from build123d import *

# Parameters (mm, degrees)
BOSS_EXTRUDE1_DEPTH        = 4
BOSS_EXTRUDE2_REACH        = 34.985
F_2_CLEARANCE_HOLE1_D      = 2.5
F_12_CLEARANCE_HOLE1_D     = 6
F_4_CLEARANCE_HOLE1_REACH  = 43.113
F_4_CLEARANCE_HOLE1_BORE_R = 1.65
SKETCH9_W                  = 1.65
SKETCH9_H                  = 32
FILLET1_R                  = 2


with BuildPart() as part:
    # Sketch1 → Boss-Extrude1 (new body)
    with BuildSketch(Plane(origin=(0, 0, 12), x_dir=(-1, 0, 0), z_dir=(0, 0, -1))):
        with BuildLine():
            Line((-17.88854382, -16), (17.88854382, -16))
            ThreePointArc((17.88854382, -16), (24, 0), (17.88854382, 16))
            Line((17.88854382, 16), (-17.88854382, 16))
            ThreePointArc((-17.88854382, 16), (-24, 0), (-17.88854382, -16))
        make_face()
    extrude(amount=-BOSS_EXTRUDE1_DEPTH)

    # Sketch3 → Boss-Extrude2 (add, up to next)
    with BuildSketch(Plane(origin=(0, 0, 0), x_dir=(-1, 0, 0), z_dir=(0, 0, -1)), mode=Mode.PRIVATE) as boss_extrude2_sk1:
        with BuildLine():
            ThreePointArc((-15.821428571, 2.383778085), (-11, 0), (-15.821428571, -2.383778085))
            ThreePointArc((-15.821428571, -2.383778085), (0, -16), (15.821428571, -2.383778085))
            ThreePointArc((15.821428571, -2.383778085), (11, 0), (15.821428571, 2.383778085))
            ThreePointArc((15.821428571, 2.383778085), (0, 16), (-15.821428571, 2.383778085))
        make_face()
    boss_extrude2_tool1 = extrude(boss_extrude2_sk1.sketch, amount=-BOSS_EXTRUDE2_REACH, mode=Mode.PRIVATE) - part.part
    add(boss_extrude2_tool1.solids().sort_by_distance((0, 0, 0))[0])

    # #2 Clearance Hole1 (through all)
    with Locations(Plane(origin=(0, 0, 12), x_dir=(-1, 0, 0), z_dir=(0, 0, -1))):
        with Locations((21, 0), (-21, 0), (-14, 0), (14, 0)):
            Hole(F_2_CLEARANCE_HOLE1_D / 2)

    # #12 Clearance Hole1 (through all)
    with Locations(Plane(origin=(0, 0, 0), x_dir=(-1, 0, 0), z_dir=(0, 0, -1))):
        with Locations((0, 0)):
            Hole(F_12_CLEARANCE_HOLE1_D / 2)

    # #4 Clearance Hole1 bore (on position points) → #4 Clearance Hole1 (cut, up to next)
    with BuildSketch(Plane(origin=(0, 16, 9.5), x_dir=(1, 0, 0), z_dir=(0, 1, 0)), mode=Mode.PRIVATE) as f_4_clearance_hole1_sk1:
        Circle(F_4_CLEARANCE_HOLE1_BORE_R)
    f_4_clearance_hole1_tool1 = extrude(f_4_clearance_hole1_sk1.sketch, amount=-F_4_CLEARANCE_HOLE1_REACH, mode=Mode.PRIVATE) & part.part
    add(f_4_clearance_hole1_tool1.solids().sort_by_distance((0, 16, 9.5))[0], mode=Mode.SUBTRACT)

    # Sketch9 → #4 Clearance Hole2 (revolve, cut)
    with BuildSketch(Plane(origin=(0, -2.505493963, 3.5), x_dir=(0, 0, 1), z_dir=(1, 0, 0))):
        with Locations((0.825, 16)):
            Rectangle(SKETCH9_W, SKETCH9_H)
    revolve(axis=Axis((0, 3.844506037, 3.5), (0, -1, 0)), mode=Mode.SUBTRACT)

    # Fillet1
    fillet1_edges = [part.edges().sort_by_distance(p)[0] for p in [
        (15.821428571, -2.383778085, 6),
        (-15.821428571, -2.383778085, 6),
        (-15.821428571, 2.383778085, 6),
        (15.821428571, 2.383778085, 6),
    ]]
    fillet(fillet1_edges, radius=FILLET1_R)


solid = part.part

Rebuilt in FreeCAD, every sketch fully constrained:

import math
import FreeCAD as App
import Part
import Sketcher
from FreeCAD import Vector


def edges_at(feature, points):
    """Names of the edges that pass closest to the given points."""
    edges = feature.Shape.Edges
    near = lambda p: min(range(len(edges)), key=lambda i: edges[i].distToShape(Part.Vertex(*p))[0])
    return sorted({f"Edge{near(p) + 1}" for p in points})

doc = App.newDocument("Part")
body = doc.addObject("PartDesign::Body", "Body")

# Sketch on XY plane
sketch1 = body.newObject("Sketcher::SketchObject", "Sketch")
sketch1.AttachmentSupport = (doc.getObject("XY_Plane"), [""])
sketch1.MapMode = "FlatFace"
sketch1.AttachmentOffset = App.Placement(Vector(0, 0, 12), App.Rotation())
sketch1.addGeometry([
    Part.LineSegment(Vector(18, -16, 0), Vector(-18, -16, 0)),
    Part.ArcOfCircle(Part.Circle(Vector(0, 0, 0), Vector(0, 0, 1), 24), math.radians(138), math.radians(222)),
    Part.LineSegment(Vector(-18, 16, 0), Vector(18, 16, 0)),
    Part.ArcOfCircle(Part.Circle(Vector(0, 0, 0), Vector(0, 0, 1), 24), math.radians(-42), math.radians(42)),
], False)
sketch1.addConstraint([
    Sketcher.Constraint("Coincident", 0, 2, 1, 2),
    Sketcher.Constraint("Coincident", 1, 1, 2, 1),
    Sketcher.Constraint("Coincident", 2, 2, 3, 2),
    Sketcher.Constraint("Coincident", 3, 1, 0, 1),
    Sketcher.Constraint("Horizontal", 0),
    Sketcher.Constraint("Horizontal", 2),
    Sketcher.Constraint("Coincident", 1, 3, -1, 1),
    Sketcher.Constraint("Coincident", 3, 3, -1, 1),
    Sketcher.Constraint("Equal", 1, 3),
    Sketcher.Constraint("Vertical", 0, 2, 1, 1),
    Sketcher.Constraint("Radius", 1, 24.0),
    Sketcher.Constraint("DistanceY", 0, 2, -1, 1, 16.0),
])
pad1 = body.newObject("PartDesign::Pad", "Pad")
pad1.Profile = sketch1
pad1.Length = 4

# Sketch on XY plane
sketch2 = body.newObject("Sketcher::SketchObject", "Sketch001")
sketch2.AttachmentSupport = (doc.getObject("XY_Plane"), [""])
sketch2.MapMode = "FlatFace"
sketch2.addGeometry([
    Part.ArcOfCircle(Part.Circle(Vector(14, 0, 0), Vector(0, 0, 1), 3), math.radians(53), math.radians(307)),
    Part.ArcOfCircle(Part.Circle(Vector(0, 0, 0), Vector(0, 0, 1), 16), math.radians(-171), math.radians(-9)),
    Part.ArcOfCircle(Part.Circle(Vector(-14, 0, 0), Vector(0, 0, 1), 3), math.radians(-127), math.radians(127)),
    Part.ArcOfCircle(Part.Circle(Vector(0, 0, 0), Vector(0, 0, 1), 16), math.radians(9), math.radians(171)),
], False)
sketch2.addConstraint([
    Sketcher.Constraint("Coincident", 0, 2, 1, 2),
    Sketcher.Constraint("Coincident", 1, 1, 2, 1),
    Sketcher.Constraint("Coincident", 2, 2, 3, 2),
    Sketcher.Constraint("Coincident", 3, 1, 0, 1),
    Sketcher.Constraint("Coincident", 1, 3, -1, 1),
    Sketcher.Constraint("Coincident", 3, 3, -1, 1),
    Sketcher.Constraint("Equal", 0, 2),
    Sketcher.Constraint("Equal", 1, 3),
    Sketcher.Constraint("Symmetric", 0, 3, 2, 3, -1, 1),
    Sketcher.Constraint("PointOnObject", 0, 3, -1),
    Sketcher.Constraint("Radius", 0, 3.0),
    Sketcher.Constraint("Radius", 1, 16.0),
    Sketcher.Constraint("DistanceX", -1, 1, 0, 3, 14.0),
])
pad2 = body.newObject("PartDesign::Pad", "Pad001")
pad2.Profile = sketch2
pad2.Type = "UpToFirst"

# Sketch on XY plane
sketch3 = body.newObject("Sketcher::SketchObject", "Sketch002")
sketch3.AttachmentSupport = (doc.getObject("XY_Plane"), [""])
sketch3.MapMode = "FlatFace"
sketch3.AttachmentOffset = App.Placement(Vector(0, 0, 12), App.Rotation())
sketch3.addGeometry([
    Part.Circle(Vector(-21, 0, 0), Vector(0, 0, 1), 1.2),
    Part.Circle(Vector(21, 0, 0), Vector(0, 0, 1), 1.2),
    Part.Circle(Vector(14, 0, 0), Vector(0, 0, 1), 1.2),
    Part.Circle(Vector(-14, 0, 0), Vector(0, 0, 1), 1.2),
], False)
sketch3.addConstraint([
    Sketcher.Constraint("Equal", 0, 1),
    Sketcher.Constraint("Equal", 1, 2),
    Sketcher.Constraint("Equal", 2, 3),
    Sketcher.Constraint("Symmetric", 0, 3, 1, 3, -1, 1),
    Sketcher.Constraint("Symmetric", 2, 3, 3, 3, -1, 1),
    Sketcher.Constraint("PointOnObject", 0, 3, -1),
    Sketcher.Constraint("PointOnObject", 2, 3, -1),
    Sketcher.Constraint("Diameter", 0, 2.5),
    Sketcher.Constraint("DistanceX", 0, 3, -1, 1, 21.0),
    Sketcher.Constraint("DistanceX", -1, 1, 2, 3, 14.0),
])
doc.recompute()
hole = body.newObject("PartDesign::Hole", "Hole")
hole.Profile = sketch3
hole.ThreadType = "None"
hole.Diameter = 2.5
hole.DepthType = "ThroughAll"
hole.Reversed = True

# Sketch on XY plane
sketch4 = body.newObject("Sketcher::SketchObject", "Sketch003")
sketch4.AttachmentSupport = (doc.getObject("XY_Plane"), [""])
sketch4.MapMode = "FlatFace"
sketch4.addGeometry(Part.Circle(Vector(0, 0, 0), Vector(0, 0, 1), 3), False)
sketch4.addConstraint([
    Sketcher.Constraint("Coincident", 0, 3, -1, 1),
    Sketcher.Constraint("Diameter", 0, 6.0),
])
doc.recompute()
hole2 = body.newObject("PartDesign::Hole", "Hole001")
hole2.Profile = sketch4
hole2.ThreadType = "None"
hole2.Diameter = 6
hole2.DepthType = "ThroughAll"
hole2.Reversed = True

# Sketch on XZ plane
sketch5 = body.newObject("Sketcher::SketchObject", "Sketch004")
sketch5.AttachmentSupport = (doc.getObject("XZ_Plane"), [""])
sketch5.MapMode = "FlatFace"
sketch5.AttachmentOffset = App.Placement(Vector(0, 0, -16), App.Rotation())
sketch5.addGeometry(Part.Circle(Vector(0, 9.5, 0), Vector(0, 0, 1), 1.6), False)
sketch5.addConstraint([
    Sketcher.Constraint("PointOnObject", 0, 3, -2),
    Sketcher.Constraint("Diameter", 0, 3.3),
    Sketcher.Constraint("DistanceY", -1, 1, 0, 3, 9.5),
])
pocket1 = body.newObject("PartDesign::Pocket", "Pocket")
pocket1.Profile = sketch5
pocket1.Type = "UpToFirst"
pocket1.Reversed = True

# Sketch on YZ plane
sketch6 = body.newObject("Sketcher::SketchObject", "Sketch005")
sketch6.AttachmentSupport = (doc.getObject("YZ_Plane"), [""])
sketch6.MapMode = "FlatFace"
sketch6.addGeometry([
    Part.LineSegment(Vector(-34.5, 3.5, 0), Vector(-2.5, 3.5, 0)),
    Part.LineSegment(Vector(-2.5, 3.5, 0), Vector(-2.5, 5.2, 0)),
    Part.LineSegment(Vector(-2.5, 5.2, 0), Vector(-34.5, 5.2, 0)),
    Part.LineSegment(Vector(-34.5, 5.2, 0), Vector(-34.5, 3.5, 0)),
], False)
sketch6.addGeometry(Part.LineSegment(Vector(-2.5, 3.5, 0), Vector(-34.5, 3.5, 0)), True)  # axis
sketch6.addConstraint([
    Sketcher.Constraint("Coincident", 0, 2, 1, 1),
    Sketcher.Constraint("Coincident", 1, 2, 2, 1),
    Sketcher.Constraint("Coincident", 2, 2, 3, 1),
    Sketcher.Constraint("Coincident", 3, 2, 0, 1),
    Sketcher.Constraint("Horizontal", 0),
    Sketcher.Constraint("Vertical", 1),
    Sketcher.Constraint("Horizontal", 2),
    Sketcher.Constraint("Vertical", 3),
    Sketcher.Constraint("Horizontal", 4),
    Sketcher.Constraint("Coincident", 4, 1, 0, 2),
    Sketcher.Constraint("Vertical", 2, 2, 4, 2),
    Sketcher.Constraint("DistanceX", 0, 1, 0, 2, 32.0),
    Sketcher.Constraint("DistanceY", 1, 1, 1, 2, 1.65),
    Sketcher.Constraint("DistanceY", -1, 1, 0, 2, 3.5),
    Sketcher.Constraint("DistanceX", 0, 2, -1, 1, 2.505494),
])
groove = body.newObject("PartDesign::Groove", "Groove")
groove.Profile = sketch6
groove.ReferenceAxis = (sketch6, ["Axis0"])
groove.Angle = 360
doc.recompute()

fillet = body.newObject("PartDesign::Fillet", "Fillet")
fillet.Base = (groove, edges_at(groove, [
    (15.821, -2.384, 6),
    (-15.821, -2.384, 6),
    (-15.821, 2.384, 6),
    (15.821, 2.384, 6),
]))
fillet.Radius = 2

doc.recompute()
